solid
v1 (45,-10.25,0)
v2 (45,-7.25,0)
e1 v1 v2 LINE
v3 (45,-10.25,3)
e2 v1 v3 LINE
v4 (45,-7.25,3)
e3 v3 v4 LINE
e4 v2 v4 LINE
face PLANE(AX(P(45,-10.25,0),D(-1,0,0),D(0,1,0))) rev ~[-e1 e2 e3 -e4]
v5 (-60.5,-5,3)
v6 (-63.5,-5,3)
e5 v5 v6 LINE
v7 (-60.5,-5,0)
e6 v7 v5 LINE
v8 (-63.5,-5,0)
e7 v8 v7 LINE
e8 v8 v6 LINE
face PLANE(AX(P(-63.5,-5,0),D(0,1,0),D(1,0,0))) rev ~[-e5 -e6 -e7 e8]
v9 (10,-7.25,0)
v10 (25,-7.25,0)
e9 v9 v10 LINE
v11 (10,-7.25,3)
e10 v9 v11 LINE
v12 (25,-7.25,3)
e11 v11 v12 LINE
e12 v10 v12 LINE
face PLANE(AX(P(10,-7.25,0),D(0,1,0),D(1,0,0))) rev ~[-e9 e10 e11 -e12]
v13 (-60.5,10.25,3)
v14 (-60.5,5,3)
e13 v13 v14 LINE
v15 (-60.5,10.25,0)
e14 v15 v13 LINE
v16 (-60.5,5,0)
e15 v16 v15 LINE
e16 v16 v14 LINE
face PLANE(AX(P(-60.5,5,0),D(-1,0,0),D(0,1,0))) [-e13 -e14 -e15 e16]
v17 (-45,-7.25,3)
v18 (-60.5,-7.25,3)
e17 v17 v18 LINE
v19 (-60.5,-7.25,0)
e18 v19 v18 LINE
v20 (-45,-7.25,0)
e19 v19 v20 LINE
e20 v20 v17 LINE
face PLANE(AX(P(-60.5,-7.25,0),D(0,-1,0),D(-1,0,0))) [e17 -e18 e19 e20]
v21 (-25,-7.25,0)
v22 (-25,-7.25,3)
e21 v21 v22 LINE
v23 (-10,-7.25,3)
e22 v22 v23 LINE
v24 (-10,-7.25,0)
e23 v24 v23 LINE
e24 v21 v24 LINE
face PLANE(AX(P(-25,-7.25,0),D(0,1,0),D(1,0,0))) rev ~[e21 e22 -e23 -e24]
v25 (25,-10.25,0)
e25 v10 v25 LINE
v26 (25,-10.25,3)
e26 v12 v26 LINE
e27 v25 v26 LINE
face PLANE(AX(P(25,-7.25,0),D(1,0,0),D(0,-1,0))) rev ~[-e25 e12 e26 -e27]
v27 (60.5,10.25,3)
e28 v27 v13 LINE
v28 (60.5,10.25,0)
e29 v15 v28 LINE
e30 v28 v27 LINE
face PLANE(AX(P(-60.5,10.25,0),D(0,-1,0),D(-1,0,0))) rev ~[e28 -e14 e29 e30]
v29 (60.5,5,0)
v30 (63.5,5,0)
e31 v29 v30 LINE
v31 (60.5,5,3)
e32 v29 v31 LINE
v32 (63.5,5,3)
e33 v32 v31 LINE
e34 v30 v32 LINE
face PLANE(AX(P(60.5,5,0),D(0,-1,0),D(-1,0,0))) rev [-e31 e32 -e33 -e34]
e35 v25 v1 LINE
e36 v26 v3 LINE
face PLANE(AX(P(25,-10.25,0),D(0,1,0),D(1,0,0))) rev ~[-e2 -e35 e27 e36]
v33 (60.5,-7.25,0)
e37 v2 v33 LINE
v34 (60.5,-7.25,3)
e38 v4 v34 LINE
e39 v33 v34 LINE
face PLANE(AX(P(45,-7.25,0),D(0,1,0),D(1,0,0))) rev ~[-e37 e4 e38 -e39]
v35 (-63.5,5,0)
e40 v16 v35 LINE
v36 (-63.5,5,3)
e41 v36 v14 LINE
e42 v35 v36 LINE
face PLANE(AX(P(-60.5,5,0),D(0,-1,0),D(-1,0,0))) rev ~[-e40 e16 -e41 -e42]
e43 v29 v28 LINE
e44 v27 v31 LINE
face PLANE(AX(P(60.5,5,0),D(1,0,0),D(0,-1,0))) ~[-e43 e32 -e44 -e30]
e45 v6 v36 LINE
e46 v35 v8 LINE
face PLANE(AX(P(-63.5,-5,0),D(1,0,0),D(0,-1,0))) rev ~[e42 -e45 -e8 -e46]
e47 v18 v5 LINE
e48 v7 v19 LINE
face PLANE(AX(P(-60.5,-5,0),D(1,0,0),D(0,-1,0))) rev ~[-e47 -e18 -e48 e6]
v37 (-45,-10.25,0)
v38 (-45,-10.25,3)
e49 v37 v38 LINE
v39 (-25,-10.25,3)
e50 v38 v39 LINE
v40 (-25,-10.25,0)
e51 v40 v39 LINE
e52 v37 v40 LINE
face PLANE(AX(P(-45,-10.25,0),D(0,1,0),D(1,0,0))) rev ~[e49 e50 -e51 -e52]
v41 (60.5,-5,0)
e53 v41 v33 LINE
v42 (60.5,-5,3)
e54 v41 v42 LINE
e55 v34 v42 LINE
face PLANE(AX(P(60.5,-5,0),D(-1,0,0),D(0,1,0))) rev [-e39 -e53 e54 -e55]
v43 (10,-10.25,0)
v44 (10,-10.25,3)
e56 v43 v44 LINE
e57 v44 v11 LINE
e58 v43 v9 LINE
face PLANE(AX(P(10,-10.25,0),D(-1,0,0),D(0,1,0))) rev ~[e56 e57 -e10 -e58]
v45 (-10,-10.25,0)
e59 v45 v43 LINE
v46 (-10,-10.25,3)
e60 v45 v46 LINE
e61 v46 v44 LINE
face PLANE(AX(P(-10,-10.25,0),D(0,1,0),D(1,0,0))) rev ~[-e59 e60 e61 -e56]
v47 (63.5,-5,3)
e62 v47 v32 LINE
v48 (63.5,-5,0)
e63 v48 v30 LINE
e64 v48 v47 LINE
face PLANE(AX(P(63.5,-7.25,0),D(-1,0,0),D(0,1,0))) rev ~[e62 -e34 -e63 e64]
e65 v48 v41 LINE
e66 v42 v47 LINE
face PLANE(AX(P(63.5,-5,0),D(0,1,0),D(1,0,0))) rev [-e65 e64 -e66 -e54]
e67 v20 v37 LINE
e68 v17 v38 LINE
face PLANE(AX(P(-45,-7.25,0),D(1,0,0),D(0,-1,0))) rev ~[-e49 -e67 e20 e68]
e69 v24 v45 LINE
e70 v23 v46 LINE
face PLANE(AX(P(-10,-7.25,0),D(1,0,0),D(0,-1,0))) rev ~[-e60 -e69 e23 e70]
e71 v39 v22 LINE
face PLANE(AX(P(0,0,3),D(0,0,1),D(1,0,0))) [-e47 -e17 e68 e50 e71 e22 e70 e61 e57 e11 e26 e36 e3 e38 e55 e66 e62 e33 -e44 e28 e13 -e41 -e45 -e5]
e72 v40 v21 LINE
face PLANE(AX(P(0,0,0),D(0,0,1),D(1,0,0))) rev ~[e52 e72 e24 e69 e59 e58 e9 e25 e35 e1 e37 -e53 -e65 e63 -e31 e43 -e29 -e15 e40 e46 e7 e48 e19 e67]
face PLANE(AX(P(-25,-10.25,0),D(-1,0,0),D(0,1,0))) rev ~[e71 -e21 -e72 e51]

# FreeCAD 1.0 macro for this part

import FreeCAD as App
import Part
import Sketcher
Q = App.Units.Quantity

doc = App.newDocument("Part")
body = doc.addObject("PartDesign::Body", "Body")

# Sketch on XY plane
sketch1 = body.newObject("Sketcher::SketchObject", "Sketch")
sketch1.AttachmentSupport = (doc.getObject("XY_Plane"), [""])
sketch1.MapMode = "FlatFace"
sketch1.addGeometry([
    Part.LineSegment(App.Vector(-63.5, -7.2, 0), App.Vector(-45, -7.2, 0)),  # 0
    Part.LineSegment(App.Vector(-45, -7.2, 0), App.Vector(-45, -10.2, 0)),  # 1
    Part.LineSegment(App.Vector(-45, -10.2, 0), App.Vector(-25, -10.2, 0)),  # 2
    Part.LineSegment(App.Vector(-25, -10.2, 0), App.Vector(-25, -7.2, 0)),  # 3
    Part.LineSegment(App.Vector(-25, -7.2, 0), App.Vector(-10, -7.2, 0)),  # 4
    Part.LineSegment(App.Vector(-10, -7.2, 0), App.Vector(-10, -10.2, 0)),  # 5
    Part.LineSegment(App.Vector(-10, -10.2, 0), App.Vector(10, -10.2, 0)),  # 6
    Part.LineSegment(App.Vector(10, -10.2, 0), App.Vector(10, -7.2, 0)),  # 7
    Part.LineSegment(App.Vector(10, -7.2, 0), App.Vector(25, -7.2, 0)),  # 8
    Part.LineSegment(App.Vector(25, -7.2, 0), App.Vector(25, -10.2, 0)),  # 9
    Part.LineSegment(App.Vector(25, -10.2, 0), App.Vector(45, -10.2, 0)),  # 10
    Part.LineSegment(App.Vector(45, -10.2, 0), App.Vector(45, -7.2, 0)),  # 11
    Part.LineSegment(App.Vector(45, -7.2, 0), App.Vector(63.5, -7.2, 0)),  # 12
    Part.LineSegment(App.Vector(63.5, -7.2, 0), App.Vector(63.5, 10.2, 0)),  # 13
    Part.LineSegment(App.Vector(63.5, 10.2, 0), App.Vector(-63.5, 10.2, 0)),  # 14
    Part.LineSegment(App.Vector(-63.5, 10.2, 0), App.Vector(-63.5, -7.2, 0)),  # 15
], False)
sketch1.addConstraint([
    Sketcher.Constraint("Coincident", 0, 2, 1, 1),
    Sketcher.Constraint("Coincident", 1, 2, 2, 1),
    Sketcher.Constraint("Coincident", 2, 2, 3, 1),
    Sketcher.Constraint("Coincident", 3, 2, 4, 1),
    Sketcher.Constraint("Coincident", 4, 2, 5, 1),
    Sketcher.Constraint("Coincident", 5, 2, 6, 1),
    Sketcher.Constraint("Coincident", 6, 2, 7, 1),
    Sketcher.Constraint("Coincident", 7, 2, 8, 1),
    Sketcher.Constraint("Coincident", 8, 2, 9, 1),
    Sketcher.Constraint("Coincident", 9, 2, 10, 1),
    Sketcher.Constraint("Coincident", 10, 2, 11, 1),
    Sketcher.Constraint("Coincident", 11, 2, 12, 1),
    Sketcher.Constraint("Coincident", 12, 2, 13, 1),
    Sketcher.Constraint("Coincident", 13, 2, 14, 1),
    Sketcher.Constraint("Coincident", 14, 2, 15, 1),
    Sketcher.Constraint("Coincident", 15, 2, 0, 1),
    Sketcher.Constraint("Horizontal", 0),
    Sketcher.Constraint("Vertical", 1),
    Sketcher.Constraint("Horizontal", 2),
    Sketcher.Constraint("Vertical", 3),
    Sketcher.Constraint("Horizontal", 4),
    Sketcher.Constraint("Vertical", 5),
    Sketcher.Constraint("Horizontal", 6),
    Sketcher.Constraint("Vertical", 7),
    Sketcher.Constraint("Horizontal", 8),
    Sketcher.Constraint("Vertical", 9),
    Sketcher.Constraint("Horizontal", 10),
    Sketcher.Constraint("Vertical", 11),
    Sketcher.Constraint("Horizontal", 12),
    Sketcher.Constraint("Vertical", 13),
    Sketcher.Constraint("Horizontal", 14),
    Sketcher.Constraint("Vertical", 15),
    Sketcher.Constraint("Symmetric", 4, 2, 7, 2, -2),
    Sketcher.Constraint("Symmetric", 2, 2, 9, 2, -2),
    Sketcher.Constraint("Symmetric", 0, 2, 11, 2, -2),
    Sketcher.Constraint("Horizontal", 0, 2, 3, 2),
    Sketcher.Constraint("Horizontal", 2, 2, 5, 2),
    Sketcher.Constraint("Equal", 2, 6),
    Sketcher.Constraint("Equal", 0, 12),
    Sketcher.Constraint("DistanceX", 2, 1, 2, 2, Q("20 mm")),
    Sketcher.Constraint("DistanceX", 14, 2, 14, 1, Q("127 mm")),
    Sketcher.Constraint("DistanceY", 1, 2, 1, 1, Q("3 mm")),
    Sketcher.Constraint("DistanceX", 0, 2, 4, 2, Q("35 mm")),
    Sketcher.Constraint("DistanceY", 10, 2, 13, 2, Q("20.5 mm")),
    Sketcher.Constraint("DistanceY", 0, 2, -1, 1, Q("7.25 mm")),
])
pad1 = body.newObject("PartDesign::Pad", "Pad")
pad1.Profile = sketch1
pad1.Length = 3

# Sketch on XY plane
sketch2 = body.newObject("Sketcher::SketchObject", "Sketch001")
sketch2.AttachmentSupport = (doc.getObject("XY_Plane"), [""])
sketch2.MapMode = "FlatFace"
sketch2.addGeometry([
    Part.LineSegment(App.Vector(-63.5, -10.2, 0), App.Vector(-45, -10.2, 0)),  # 0
    Part.LineSegment(App.Vector(-45, -10.2, 0), App.Vector(-45, -7.2, 0)),  # 1
    Part.LineSegment(App.Vector(-45, -7.2, 0), App.Vector(-60.5, -7.2, 0)),  # 2
    Part.LineSegment(App.Vector(-60.5, -7.2, 0), App.Vector(-60.5, -5, 0)),  # 3
    Part.LineSegment(App.Vector(-60.5, -5, 0), App.Vector(-63.5, -5, 0)),  # 4
    Part.LineSegment(App.Vector(-63.5, -5, 0), App.Vector(-63.5, -10.2, 0)),  # 5
    Part.LineSegment(App.Vector(-25, -7.2, 0), App.Vector(-25, -10.2, 0)),  # 6
    Part.LineSegment(App.Vector(-25, -10.2, 0), App.Vector(-10, -10.2, 0)),  # 7
    Part.LineSegment(App.Vector(-10, -10.2, 0), App.Vector(-10, -7.2, 0)),  # 8
    Part.LineSegment(App.Vector(-10, -7.2, 0), App.Vector(-25, -7.2, 0)),  # 9
    Part.LineSegment(App.Vector(-63.5, 10.2, 0), App.Vector(-63.5, 5, 0)),  # 10
    Part.LineSegment(App.Vector(-63.5, 5, 0), App.Vector(-60.5, 5, 0)),  # 11
    Part.LineSegment(App.Vector(-60.5, 5, 0), App.Vector(-60.5, 10.2, 0)),  # 12
    Part.LineSegment(App.Vector(-60.5, 10.2, 0), App.Vector(-63.5, 10.2, 0)),  # 13
    Part.LineSegment(App.Vector(10, -7.2, 0), App.Vector(10, -10.2, 0)),  # 14
    Part.LineSegment(App.Vector(10, -10.2, 0), App.Vector(25, -10.2, 0)),  # 15
    Part.LineSegment(App.Vector(25, -10.2, 0), App.Vector(25, -7.2, 0)),  # 16
    Part.LineSegment(App.Vector(25, -7.2, 0), App.Vector(10, -7.2, 0)),  # 17
    Part.LineSegment(App.Vector(45, -7.2, 0), App.Vector(45, -10.2, 0)),  # 18
    Part.LineSegment(App.Vector(45, -10.2, 0), App.Vector(63.5, -10.2, 0)),  # 19
    Part.LineSegment(App.Vector(63.5, -10.2, 0), App.Vector(63.5, -7.2, 0)),  # 20
    Part.LineSegment(App.Vector(63.5, -7.2, 0), App.Vector(45, -7.2, 0)),  # 21
], False)
sketch2.addConstraint([
    Sketcher.Constraint("Coincident", 0, 2, 1, 1),
    Sketcher.Constraint("Coincident", 1, 2, 2, 1),
    Sketcher.Constraint("Coincident", 2, 2, 3, 1),
    Sketcher.Constraint("Coincident", 3, 2, 4, 1),
    Sketcher.Constraint("Coincident", 4, 2, 5, 1),
    Sketcher.Constraint("Coincident", 5, 2, 0, 1),
    Sketcher.Constraint("Coincident", 6, 2, 7, 1),
    Sketcher.Constraint("Coincident", 7, 2, 8, 1),
    Sketcher.Constraint("Coincident", 8, 2, 9, 1),
    Sketcher.Constraint("Coincident", 9, 2, 6, 1),
    Sketcher.Constraint("Coincident", 10, 2, 11, 1),
    Sketcher.Constraint("Coincident", 11, 2, 12, 1),
    Sketcher.Constraint("Coincident", 12, 2, 13, 1),
    Sketcher.Constraint("Coincident", 13, 2, 10, 1),
    Sketcher.Constraint("Coincident", 14, 2, 15, 1),
    Sketcher.Constraint("Coincident", 15, 2, 16, 1),
    Sketcher.Constraint("Coincident", 16, 2, 17, 1),
    Sketcher.Constraint("Coincident", 17, 2, 14, 1),
    Sketcher.Constraint("Coincident", 18, 2, 19, 1),
    Sketcher.Constraint("Coincident", 19, 2, 20, 1),
    Sketcher.Constraint("Coincident", 20, 2, 21, 1),
    Sketcher.Constraint("Coincident", 21, 2, 18, 1),
    Sketcher.Constraint("Horizontal", 0),
    Sketcher.Constraint("Vertical", 1),
    Sketcher.Constraint("Horizontal", 2),
    Sketcher.Constraint("Vertical", 3),
    Sketcher.Constraint("Horizontal", 4),
    Sketcher.Constraint("Vertical", 5),
    Sketcher.Constraint("Vertical", 6),
    Sketcher.Constraint("Horizontal", 7),
    Sketcher.Constraint("Vertical", 8),
    Sketcher.Constraint("Horizontal", 9),
    Sketcher.Constraint("Vertical", 10),
    Sketcher.Constraint("Horizontal", 11),
    Sketcher.Constraint("Vertical", 12),
    Sketcher.Constraint("Horizontal", 13),
    Sketcher.Constraint("Vertical", 14),
    Sketcher.Constraint("Horizontal", 15),
    Sketcher.Constraint("Vertical", 16),
    Sketcher.Constraint("Horizontal", 17),
    Sketcher.Constraint("Vertical", 18),
    Sketcher.Constraint("Horizontal", 19),
    Sketcher.Constraint("Vertical", 20),
    Sketcher.Constraint("Horizontal", 21),
    Sketcher.Constraint("Symmetric", 13, 2, 19, 2, -1, 1),
    Sketcher.Constraint("Symmetric", 7, 2, 14, 2, -2),
    Sketcher.Constraint("Symmetric", 9, 2, 16, 2, -2),
    Sketcher.Constraint("Symmetric", 0, 2, 18, 2, -2),
    Sketcher.Constraint("Symmetric", 4, 2, 10, 2, -1),
    Sketcher.Constraint("Horizontal", 5, 2, 6, 2),
    Sketcher.Constraint("Horizontal", 2, 2, 8, 2),
    Sketcher.Constraint("Horizontal", 17, 2, 20, 2),
    Sketcher.Constraint("Vertical", 3, 2, 11, 2),
    Sketcher.Constraint("Equal", 13, 1),
    Sketcher.Constraint("DistanceX", 4, 2, 4, 1, Q("3 mm")),
    Sketcher.Constraint("DistanceX", 7, 2, -1, 1, Q("10 mm")),
    Sketcher.Constraint("DistanceX", 0, 2, 6, 2, Q("20 mm")),
    Sketcher.Constraint("DistanceX", 0, 2, 7, 2, Q("35 mm")),
    Sketcher.Constraint("DistanceY", 4, 2, 10, 2, Q("10 mm")),
    Sketcher.Constraint("DistanceX", 0, 1, 0, 2, Q("18.5 mm")),
    Sketcher.Constraint("DistanceY", 3, 1, 3, 2, Q("2.25 mm")),
])
pocket1 = body.newObject("PartDesign::Pocket", "Pocket")
pocket1.Profile = sketch2
pocket1.Type = "ThroughAll"
pocket1.Reversed = True
doc.recompute()

mirrored = body.newObject("PartDesign::Mirrored", "Mirrored")
mirrored.Originals = [pocket1]
mirrored.MirrorPlane = (doc.getObject("YZ_Plane"), [""])
body.Tip = mirrored

doc.recompute()
